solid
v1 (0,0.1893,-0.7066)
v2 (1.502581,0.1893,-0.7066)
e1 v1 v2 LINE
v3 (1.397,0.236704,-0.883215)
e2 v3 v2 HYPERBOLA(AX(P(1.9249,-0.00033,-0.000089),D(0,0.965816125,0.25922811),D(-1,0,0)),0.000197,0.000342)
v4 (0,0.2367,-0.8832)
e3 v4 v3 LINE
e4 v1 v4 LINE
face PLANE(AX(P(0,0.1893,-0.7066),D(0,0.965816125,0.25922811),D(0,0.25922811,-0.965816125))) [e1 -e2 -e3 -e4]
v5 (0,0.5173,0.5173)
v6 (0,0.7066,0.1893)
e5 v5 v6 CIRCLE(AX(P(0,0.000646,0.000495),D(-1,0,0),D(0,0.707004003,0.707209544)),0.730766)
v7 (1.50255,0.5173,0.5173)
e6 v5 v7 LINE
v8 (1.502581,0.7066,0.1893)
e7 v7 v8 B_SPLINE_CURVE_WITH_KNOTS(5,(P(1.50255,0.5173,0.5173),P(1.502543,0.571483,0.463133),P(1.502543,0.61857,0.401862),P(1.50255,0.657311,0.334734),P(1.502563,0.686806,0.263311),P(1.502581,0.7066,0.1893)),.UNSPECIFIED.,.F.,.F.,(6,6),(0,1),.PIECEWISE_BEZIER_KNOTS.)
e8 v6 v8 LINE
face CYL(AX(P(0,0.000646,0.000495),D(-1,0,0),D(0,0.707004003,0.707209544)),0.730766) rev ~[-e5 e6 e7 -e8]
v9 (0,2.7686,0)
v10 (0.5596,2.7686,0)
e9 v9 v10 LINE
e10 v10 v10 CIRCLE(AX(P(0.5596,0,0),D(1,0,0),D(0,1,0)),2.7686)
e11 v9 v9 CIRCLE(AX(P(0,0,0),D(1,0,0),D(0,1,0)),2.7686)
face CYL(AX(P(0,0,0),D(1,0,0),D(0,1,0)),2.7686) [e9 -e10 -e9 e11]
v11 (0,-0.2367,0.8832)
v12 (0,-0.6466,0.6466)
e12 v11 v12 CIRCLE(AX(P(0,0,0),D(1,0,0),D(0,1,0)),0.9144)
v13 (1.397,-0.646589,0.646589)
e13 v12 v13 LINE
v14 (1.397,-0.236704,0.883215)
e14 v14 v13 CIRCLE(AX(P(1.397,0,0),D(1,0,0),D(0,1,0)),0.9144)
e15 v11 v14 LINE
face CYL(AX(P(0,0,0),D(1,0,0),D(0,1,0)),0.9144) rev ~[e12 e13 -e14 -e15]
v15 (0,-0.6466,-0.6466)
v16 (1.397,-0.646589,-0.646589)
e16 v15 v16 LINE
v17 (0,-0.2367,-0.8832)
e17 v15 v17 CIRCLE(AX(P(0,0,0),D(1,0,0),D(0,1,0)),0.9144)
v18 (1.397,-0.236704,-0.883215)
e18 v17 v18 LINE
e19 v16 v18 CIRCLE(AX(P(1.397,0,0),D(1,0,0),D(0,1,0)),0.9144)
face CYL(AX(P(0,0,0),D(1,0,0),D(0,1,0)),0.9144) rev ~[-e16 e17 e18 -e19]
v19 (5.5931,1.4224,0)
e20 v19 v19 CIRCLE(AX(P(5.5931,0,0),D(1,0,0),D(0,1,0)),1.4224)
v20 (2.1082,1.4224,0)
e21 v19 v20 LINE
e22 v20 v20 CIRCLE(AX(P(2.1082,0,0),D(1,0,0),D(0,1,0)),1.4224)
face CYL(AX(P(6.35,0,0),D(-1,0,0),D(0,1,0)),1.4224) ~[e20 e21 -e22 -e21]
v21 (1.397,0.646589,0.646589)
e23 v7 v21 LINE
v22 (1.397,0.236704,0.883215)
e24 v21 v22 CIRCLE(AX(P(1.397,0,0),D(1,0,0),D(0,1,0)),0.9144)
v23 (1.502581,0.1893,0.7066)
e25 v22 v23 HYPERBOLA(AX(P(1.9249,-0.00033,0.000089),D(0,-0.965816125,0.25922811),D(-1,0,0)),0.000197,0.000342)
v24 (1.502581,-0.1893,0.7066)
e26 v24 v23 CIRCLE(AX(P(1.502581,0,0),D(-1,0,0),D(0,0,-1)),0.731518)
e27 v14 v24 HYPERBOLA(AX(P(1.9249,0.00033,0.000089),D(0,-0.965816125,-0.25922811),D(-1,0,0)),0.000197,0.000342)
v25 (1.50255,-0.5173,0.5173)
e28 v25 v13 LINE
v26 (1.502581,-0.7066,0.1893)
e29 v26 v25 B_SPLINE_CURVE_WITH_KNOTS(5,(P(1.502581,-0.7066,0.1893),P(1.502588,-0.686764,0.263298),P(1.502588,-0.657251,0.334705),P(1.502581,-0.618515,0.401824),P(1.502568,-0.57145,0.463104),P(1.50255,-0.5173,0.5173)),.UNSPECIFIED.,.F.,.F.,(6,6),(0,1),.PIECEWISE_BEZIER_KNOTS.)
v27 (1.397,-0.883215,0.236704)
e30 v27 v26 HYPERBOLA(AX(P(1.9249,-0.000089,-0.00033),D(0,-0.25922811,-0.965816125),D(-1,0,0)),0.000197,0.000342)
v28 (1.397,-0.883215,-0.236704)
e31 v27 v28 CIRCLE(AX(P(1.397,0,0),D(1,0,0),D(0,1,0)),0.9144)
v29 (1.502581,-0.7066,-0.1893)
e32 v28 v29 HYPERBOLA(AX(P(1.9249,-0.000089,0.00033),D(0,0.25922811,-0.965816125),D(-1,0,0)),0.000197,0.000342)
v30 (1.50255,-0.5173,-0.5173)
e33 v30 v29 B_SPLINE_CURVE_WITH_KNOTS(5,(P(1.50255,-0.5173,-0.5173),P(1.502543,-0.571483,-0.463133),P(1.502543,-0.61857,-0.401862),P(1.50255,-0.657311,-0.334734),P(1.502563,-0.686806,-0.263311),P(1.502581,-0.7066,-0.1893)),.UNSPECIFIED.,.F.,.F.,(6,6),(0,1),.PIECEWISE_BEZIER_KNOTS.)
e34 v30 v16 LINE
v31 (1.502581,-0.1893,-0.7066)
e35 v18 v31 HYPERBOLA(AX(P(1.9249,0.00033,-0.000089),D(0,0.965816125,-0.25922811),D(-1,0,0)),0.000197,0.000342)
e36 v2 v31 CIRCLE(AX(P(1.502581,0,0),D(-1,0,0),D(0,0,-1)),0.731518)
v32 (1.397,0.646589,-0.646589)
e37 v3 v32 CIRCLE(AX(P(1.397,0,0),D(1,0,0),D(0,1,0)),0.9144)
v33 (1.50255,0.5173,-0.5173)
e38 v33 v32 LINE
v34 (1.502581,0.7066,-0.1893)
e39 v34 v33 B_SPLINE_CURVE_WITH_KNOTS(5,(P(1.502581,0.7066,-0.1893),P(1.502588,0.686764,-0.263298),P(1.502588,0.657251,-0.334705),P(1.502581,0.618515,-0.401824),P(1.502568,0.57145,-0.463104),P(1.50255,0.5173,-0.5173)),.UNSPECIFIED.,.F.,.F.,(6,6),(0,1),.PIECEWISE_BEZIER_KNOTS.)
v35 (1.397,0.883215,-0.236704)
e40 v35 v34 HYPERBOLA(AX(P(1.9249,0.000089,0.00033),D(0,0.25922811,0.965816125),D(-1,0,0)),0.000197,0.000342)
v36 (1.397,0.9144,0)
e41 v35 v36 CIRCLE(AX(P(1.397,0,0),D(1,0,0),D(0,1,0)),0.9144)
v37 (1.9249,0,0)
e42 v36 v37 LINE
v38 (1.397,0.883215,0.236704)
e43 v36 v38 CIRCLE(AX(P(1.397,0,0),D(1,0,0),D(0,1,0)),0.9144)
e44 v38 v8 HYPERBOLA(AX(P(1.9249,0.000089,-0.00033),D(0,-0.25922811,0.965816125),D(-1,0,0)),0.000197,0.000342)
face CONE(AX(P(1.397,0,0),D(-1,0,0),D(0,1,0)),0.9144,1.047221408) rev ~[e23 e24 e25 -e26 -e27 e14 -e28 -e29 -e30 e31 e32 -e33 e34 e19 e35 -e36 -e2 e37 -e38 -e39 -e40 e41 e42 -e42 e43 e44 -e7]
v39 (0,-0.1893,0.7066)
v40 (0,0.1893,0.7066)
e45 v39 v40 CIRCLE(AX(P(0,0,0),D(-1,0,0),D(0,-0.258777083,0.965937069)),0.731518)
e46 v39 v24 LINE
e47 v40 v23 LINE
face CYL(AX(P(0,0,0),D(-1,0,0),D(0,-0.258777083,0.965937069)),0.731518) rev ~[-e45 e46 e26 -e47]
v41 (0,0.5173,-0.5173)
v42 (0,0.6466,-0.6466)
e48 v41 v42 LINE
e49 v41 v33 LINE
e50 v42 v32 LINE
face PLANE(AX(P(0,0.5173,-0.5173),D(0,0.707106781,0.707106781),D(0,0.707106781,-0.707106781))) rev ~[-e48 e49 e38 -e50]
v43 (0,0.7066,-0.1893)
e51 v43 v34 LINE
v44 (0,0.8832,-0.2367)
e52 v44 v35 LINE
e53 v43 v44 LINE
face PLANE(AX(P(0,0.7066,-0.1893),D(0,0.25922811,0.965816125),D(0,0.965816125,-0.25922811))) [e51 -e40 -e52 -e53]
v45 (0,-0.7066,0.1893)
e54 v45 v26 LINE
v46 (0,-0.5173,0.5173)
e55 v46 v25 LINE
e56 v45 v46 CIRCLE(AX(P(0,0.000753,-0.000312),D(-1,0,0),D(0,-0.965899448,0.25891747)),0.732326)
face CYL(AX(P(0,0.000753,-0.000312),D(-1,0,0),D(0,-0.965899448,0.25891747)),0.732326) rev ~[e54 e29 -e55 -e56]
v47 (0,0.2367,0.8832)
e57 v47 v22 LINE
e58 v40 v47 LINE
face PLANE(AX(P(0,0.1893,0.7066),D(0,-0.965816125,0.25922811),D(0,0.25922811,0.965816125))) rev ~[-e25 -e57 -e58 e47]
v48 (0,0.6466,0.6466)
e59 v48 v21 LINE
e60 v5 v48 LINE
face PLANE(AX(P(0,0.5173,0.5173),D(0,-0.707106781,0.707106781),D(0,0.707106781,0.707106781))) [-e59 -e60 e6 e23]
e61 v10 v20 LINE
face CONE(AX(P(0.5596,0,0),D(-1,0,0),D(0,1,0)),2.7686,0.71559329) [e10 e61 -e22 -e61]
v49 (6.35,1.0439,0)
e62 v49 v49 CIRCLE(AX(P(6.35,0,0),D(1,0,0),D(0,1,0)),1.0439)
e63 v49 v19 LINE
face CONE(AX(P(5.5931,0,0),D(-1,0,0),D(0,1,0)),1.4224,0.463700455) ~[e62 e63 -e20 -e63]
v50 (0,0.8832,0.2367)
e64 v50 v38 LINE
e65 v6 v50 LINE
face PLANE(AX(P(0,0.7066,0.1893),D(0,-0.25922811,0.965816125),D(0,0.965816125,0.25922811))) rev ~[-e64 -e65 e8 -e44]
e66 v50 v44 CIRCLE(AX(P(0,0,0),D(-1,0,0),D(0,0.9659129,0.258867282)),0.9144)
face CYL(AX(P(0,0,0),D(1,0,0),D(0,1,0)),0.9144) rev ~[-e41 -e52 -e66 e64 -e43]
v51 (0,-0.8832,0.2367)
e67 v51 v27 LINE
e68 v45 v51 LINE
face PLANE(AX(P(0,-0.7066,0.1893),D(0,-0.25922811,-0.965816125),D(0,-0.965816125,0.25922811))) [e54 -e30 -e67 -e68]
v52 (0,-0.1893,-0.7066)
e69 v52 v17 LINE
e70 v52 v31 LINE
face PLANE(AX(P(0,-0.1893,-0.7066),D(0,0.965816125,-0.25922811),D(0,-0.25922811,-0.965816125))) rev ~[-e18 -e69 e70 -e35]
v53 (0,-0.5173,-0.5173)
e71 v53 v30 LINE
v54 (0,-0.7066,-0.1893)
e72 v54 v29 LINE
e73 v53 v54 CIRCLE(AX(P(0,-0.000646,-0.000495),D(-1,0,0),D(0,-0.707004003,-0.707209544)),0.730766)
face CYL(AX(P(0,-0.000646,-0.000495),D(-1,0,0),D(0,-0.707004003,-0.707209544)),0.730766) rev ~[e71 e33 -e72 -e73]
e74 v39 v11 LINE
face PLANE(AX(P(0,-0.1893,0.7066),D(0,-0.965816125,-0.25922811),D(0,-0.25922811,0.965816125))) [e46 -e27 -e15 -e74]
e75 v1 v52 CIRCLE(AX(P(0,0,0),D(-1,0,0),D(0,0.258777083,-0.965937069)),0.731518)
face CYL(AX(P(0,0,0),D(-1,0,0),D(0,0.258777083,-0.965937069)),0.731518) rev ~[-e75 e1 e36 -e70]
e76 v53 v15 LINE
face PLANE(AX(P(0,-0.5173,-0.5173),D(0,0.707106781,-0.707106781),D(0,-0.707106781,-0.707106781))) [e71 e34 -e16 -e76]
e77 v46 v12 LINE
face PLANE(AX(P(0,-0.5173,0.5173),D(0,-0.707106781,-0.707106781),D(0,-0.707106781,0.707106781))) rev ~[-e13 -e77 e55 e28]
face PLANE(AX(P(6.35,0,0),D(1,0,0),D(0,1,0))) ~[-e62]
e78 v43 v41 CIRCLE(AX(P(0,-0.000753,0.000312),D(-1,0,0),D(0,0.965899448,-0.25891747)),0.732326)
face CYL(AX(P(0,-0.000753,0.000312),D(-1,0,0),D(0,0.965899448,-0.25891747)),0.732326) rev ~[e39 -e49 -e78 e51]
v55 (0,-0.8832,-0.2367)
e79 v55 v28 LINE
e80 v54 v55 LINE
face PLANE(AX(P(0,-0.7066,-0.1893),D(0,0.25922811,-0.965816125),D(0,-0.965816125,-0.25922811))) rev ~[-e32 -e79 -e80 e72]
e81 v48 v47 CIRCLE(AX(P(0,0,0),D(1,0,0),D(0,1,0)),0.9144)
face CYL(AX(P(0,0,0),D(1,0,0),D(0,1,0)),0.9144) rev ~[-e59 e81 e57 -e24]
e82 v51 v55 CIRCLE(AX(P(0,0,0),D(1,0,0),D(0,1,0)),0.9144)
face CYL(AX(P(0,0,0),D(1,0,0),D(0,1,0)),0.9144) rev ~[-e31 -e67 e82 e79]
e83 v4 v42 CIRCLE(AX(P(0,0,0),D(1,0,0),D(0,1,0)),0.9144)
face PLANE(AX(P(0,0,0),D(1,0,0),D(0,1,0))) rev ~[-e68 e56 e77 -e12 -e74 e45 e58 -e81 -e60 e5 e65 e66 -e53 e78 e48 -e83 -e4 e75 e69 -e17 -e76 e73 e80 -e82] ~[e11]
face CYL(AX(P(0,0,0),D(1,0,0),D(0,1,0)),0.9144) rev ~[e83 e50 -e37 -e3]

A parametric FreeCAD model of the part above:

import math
import FreeCAD as App
import Part
import Sketcher
from FreeCAD import Vector
Q = App.Units.Quantity


def edges_at(feature, points):
    """Names of the edges that pass closest to the given points."""
    edges = feature.Shape.Edges
    near = lambda p: min(range(len(edges)), key=lambda i: edges[i].distToShape(Part.Vertex(*p))[0])
    return sorted({f"Edge{near(p) + 1}" for p in points})

doc = App.newDocument("Part")
body = doc.addObject("PartDesign::Body", "Body")

sketch1 = doc.addObject("Sketcher::SketchObject", "Sketch")
body.addObject(sketch1)
sketch1.AttachmentSupport = (doc.XY_Plane, [""])
sketch1.MapMode = "FlatFace"
sketch1.addGeometry([
    Part.LineSegment(Vector(1.9249, 0, 0), Vector(6.35, 0, 0)),
    Part.LineSegment(Vector(6.35, 0, 0), Vector(6.35, 1.4224, 0)),
    Part.LineSegment(Vector(6.35, 1.4224, 0), Vector(2.1082, 1.4224, 0)),
    Part.LineSegment(Vector(2.1082, 1.4224, 0), Vector(0.5596, 2.7686, 0)),
    Part.LineSegment(Vector(0.5596, 2.7686, 0), Vector(0, 2.7686, 0)),
    Part.LineSegment(Vector(0, 2.7686, 0), Vector(0, 0.9144, 0)),
    Part.LineSegment(Vector(0, 0.9144, 0), Vector(1.397, 0.9144, 0)),
    Part.LineSegment(Vector(1.397, 0.9144, 0), Vector(1.9249, 0, 0)),
], False)
sketch1.addConstraint([
    Sketcher.Constraint("Coincident", 0, 2, 1, 1),
    Sketcher.Constraint("Coincident", 1, 2, 2, 1),
    Sketcher.Constraint("Coincident", 2, 2, 3, 1),
    Sketcher.Constraint("Coincident", 3, 2, 4, 1),
    Sketcher.Constraint("Coincident", 4, 2, 5, 1),
    Sketcher.Constraint("Coincident", 5, 2, 6, 1),
    Sketcher.Constraint("Coincident", 6, 2, 7, 1),
    Sketcher.Constraint("Coincident", 7, 2, 0, 1),
    Sketcher.Constraint("Horizontal", 0),
    Sketcher.Constraint("Vertical", 1),
    Sketcher.Constraint("Horizontal", 2),
    Sketcher.Constraint("Horizontal", 4),
    Sketcher.Constraint("Vertical", 5),
    Sketcher.Constraint("Horizontal", 6),
    Sketcher.Constraint("PointOnObject", 0, 2, -1),
    Sketcher.Constraint("PointOnObject", 4, 2, -2),
    Sketcher.Constraint("DistanceX", 6, 1, 6, 2, Q("0.055 in")),
    Sketcher.Constraint("DistanceX", -1, 1, 0, 2, Q("0.25 in")),
    Sketcher.Constraint("DistanceX", -1, 1, 2, 2, Q("0.083 in")),
    Sketcher.Constraint("Angle", 3, Q("138.9995 deg")),
    Sketcher.Constraint("DistanceY", 1, 1, 1, 2, Q("0.056 in")),
    Sketcher.Constraint("DistanceY", 5, 2, 5, 1, Q("0.073 in")),
    Sketcher.Constraint("DistanceY", 5, 2, 2, 2, Q("0.02 in")),
    Sketcher.Constraint("DistanceX", 0, 1, 0, 2, 4.425),
])
revolution = doc.addObject("PartDesign::Revolution", "Revolution")
body.addObject(revolution)
revolution.Profile = sketch1
revolution.ReferenceAxis = (sketch1, ["H_Axis"])
revolution.Angle = 360

sketch2 = doc.addObject("Sketcher::SketchObject", "Sketch001")
body.addObject(sketch2)
sketch2.AttachmentSupport = (doc.YZ_Plane, [""])
sketch2.MapMode = "FlatFace"
sketch2.addGeometry([
    Part.ArcOfCircle(Part.Circle(Vector(0, 0, 0), Vector(0, 0, 1), 0.731518), math.radians(75.002489), math.radians(104.997511)),
    Part.LineSegment(Vector(-0.1893, 0.7066, 0), Vector(-0.2367, 0.8832, 0)),
    Part.ArcOfCircle(Part.Circle(Vector(0, 0, 0), Vector(0, 0, 1), 0.9144), math.radians(74.997139), math.radians(105.002861)),
    Part.LineSegment(Vector(0.2367, 0.8832, 0), Vector(0.1893, 0.7066, 0)),
    Part.ArcOfCircle(Part.Circle(Vector(0, 0, 0), Vector(0, 0, 1), 0.731518), math.radians(-104.997511), math.radians(-75.002489)),
    Part.LineSegment(Vector(0.1893, -0.7066, 0), Vector(0.2367, -0.8832, 0)),
    Part.ArcOfCircle(Part.Circle(Vector(0, 0, 0), Vector(0, 0, 1), 0.9144), math.radians(-105.002861), math.radians(-74.997139)),
    Part.LineSegment(Vector(-0.2367, -0.8832, 0), Vector(-0.1893, -0.7066, 0)),
    Part.ArcOfCircle(Part.Circle(Vector(0, 0, 0), Vector(0, 0, 1), 0.9144), math.radians(15.002861), math.radians(45)),
    Part.LineSegment(Vector(0.8832, 0.2367, 0), Vector(0.7066, 0.1893, 0)),
    Part.ArcOfCircle(Part.Circle(Vector(0, 0, 0), Vector(0, 0, 1), 0.731518), math.radians(14.997511), math.radians(45)),
    Part.LineSegment(Vector(0.5173, 0.5173, 0), Vector(0.6466, 0.6466, 0)),
    Part.LineSegment(Vector(0.7066, -0.1893, 0), Vector(0.8832, -0.2367, 0)),
    Part.ArcOfCircle(Part.Circle(Vector(0, 0, 0), Vector(0, 0, 1), 0.9144), math.radians(-45), math.radians(-15.002861)),
    Part.LineSegment(Vector(0.6466, -0.6466, 0), Vector(0.5173, -0.5173, 0)),
    Part.ArcOfCircle(Part.Circle(Vector(0, 0, 0), Vector(0, 0, 1), 0.731573), math.radians(-45), math.radians(-14.997511)),
    Part.ArcOfCircle(Part.Circle(Vector(0, 0, 0), Vector(0, 0, 1), 0.9144), math.radians(-164.997139), math.radians(-135)),
    Part.LineSegment(Vector(-0.8832, -0.2367, 0), Vector(-0.7066, -0.1893, 0)),
    Part.ArcOfCircle(Part.Circle(Vector(0, 0, 0), Vector(0, 0, 1), 0.731518), math.radians(-165.002489), math.radians(-135)),
    Part.LineSegment(Vector(-0.5173, -0.5173, 0), Vector(-0.6466, -0.6466, 0)),
    Part.LineSegment(Vector(-0.7066, 0.1893, 0), Vector(-0.8832, 0.2367, 0)),
    Part.ArcOfCircle(Part.Circle(Vector(0, 0, 0), Vector(0, 0, 1), 0.9144), math.radians(135), math.radians(164.997139)),
    Part.LineSegment(Vector(-0.6466, 0.6466, 0), Vector(-0.5173, 0.5173, 0)),
    Part.ArcOfCircle(Part.Circle(Vector(0, 0, 0), Vector(0, 0, 1), 0.731573), math.radians(135), math.radians(165.002489)),
], False)
sketch2.addConstraint([
    Sketcher.Constraint("Coincident", 0, 2, 1, 1),
    Sketcher.Constraint("Coincident", 1, 2, 2, 2),
    Sketcher.Constraint("Coincident", 2, 1, 3, 1),
    Sketcher.Constraint("Coincident", 3, 2, 0, 1),
    Sketcher.Constraint("Coincident", 4, 2, 5, 1),
    Sketcher.Constraint("Coincident", 5, 2, 6, 2),
    Sketcher.Constraint("Coincident", 6, 1, 7, 1),
    Sketcher.Constraint("Coincident", 7, 2, 4, 1),
    Sketcher.Constraint("Coincident", 8, 1, 9, 1),
    Sketcher.Constraint("Coincident", 9, 2, 10, 1),
    Sketcher.Constraint("Coincident", 10, 2, 11, 1),
    Sketcher.Constraint("Coincident", 11, 2, 8, 2),
    Sketcher.Constraint("Coincident", 12, 2, 13, 2),
    Sketcher.Constraint("Coincident", 13, 1, 14, 1),
    Sketcher.Constraint("Coincident", 14, 2, 15, 1),
    Sketcher.Constraint("Coincident", 15, 2, 12, 1),
    Sketcher.Constraint("Coincident", 16, 1, 17, 1),
    Sketcher.Constraint("Coincident", 17, 2, 18, 1),
    Sketcher.Constraint("Coincident", 18, 2, 19, 1),
    Sketcher.Constraint("Coincident", 19, 2, 16, 2),
    Sketcher.Constraint("Coincident", 20, 2, 21, 2),
    Sketcher.Constraint("Coincident", 21, 1, 22, 1),
    Sketcher.Constraint("Coincident", 22, 2, 23, 1),
    Sketcher.Constraint("Coincident", 23, 2, 20, 1),
    Sketcher.Constraint("Coincident", 0, 3, -1, 1),
    Sketcher.Constraint("Coincident", 2, 3, -1, 1),
    Sketcher.Constraint("Coincident", 4, 3, -1, 1),
    Sketcher.Constraint("Coincident", 6, 3, -1, 1),
    Sketcher.Constraint("Coincident", 8, 3, -1, 1),
    Sketcher.Constraint("Coincident", 10, 3, -1, 1),
    Sketcher.Constraint("Coincident", 13, 3, -1, 1),
    Sketcher.Constraint("Coincident", 15, 3, -1, 1),
    Sketcher.Constraint("Coincident", 16, 3, -1, 1),
    Sketcher.Constraint("Coincident", 18, 3, -1, 1),
    Sketcher.Constraint("Coincident", 21, 3, -1, 1),
    Sketcher.Constraint("Coincident", 23, 3, -1, 1),
    Sketcher.Constraint("Equal", 0, 4),
    Sketcher.Constraint("Equal", 2, 6),
    Sketcher.Constraint("Equal", 6, 8),
    Sketcher.Constraint("Equal", 4, 10),
    Sketcher.Constraint("Equal", 8, 13),
    Sketcher.Constraint("Equal", 10, 15),
    Sketcher.Constraint("Equal", 13, 16),
    Sketcher.Constraint("Equal", 15, 18),
    Sketcher.Constraint("Equal", 16, 21),
    Sketcher.Constraint("Equal", 18, 23),
    Sketcher.Constraint("Parallel", 1, 5),
    Sketcher.Constraint("Parallel", 3, 7),
    Sketcher.Constraint("Perpendicular", 5, 9),
    Sketcher.Constraint("Perpendicular", 7, 12),
    Sketcher.Constraint("Perpendicular", 11, 14),
    Sketcher.Constraint("Parallel", 9, 17),
    Sketcher.Constraint("Perpendicular", 14, 19),
    Sketcher.Constraint("Parallel", 12, 20),
    Sketcher.Constraint("Perpendicular", 19, 22),
    Sketcher.Constraint("Horizontal", 1, 2, 2, 1),
    Sketcher.Constraint("Horizontal", 0, 2, 3, 2),
    Sketcher.Constraint("Horizontal", 5, 2, 6, 1),
    Sketcher.Constraint("Horizontal", 12, 2, 16, 1),
    Sketcher.Constraint("Horizontal", 14, 2, 18, 2),
    Sketcher.Constraint("Horizontal", 13, 1, 19, 2),
    Sketcher.Constraint("Horizontal", 8, 1, 20, 2),
    Sketcher.Constraint("Horizontal", 11, 2, 21, 1),
    Sketcher.Constraint("Vertical", 3, 2, 4, 2),
    Sketcher.Constraint("Vertical", 8, 1, 12, 2),
    Sketcher.Constraint("Vertical", 11, 2, 13, 1),
    Sketcher.Constraint("Radius", 2, Q("0.036 in")),
    Sketcher.Constraint("Radius", 0, Q("0.0288 in")),
    Sketcher.Constraint("DistanceX", 3, 2, 11, 2, Q("0.018 in")),
    Sketcher.Constraint("DistanceY", 9, 2, 11, 2, Q("0.018 in")),
    Sketcher.Constraint("DistanceX", 0, 2, 3, 2, Q("0.0149 in")),
    Sketcher.Constraint("DistanceY", 8, 1, 3, 2, Q("0.0185 in")),
])
pad1 = doc.addObject("PartDesign::Pad", "Pad")
body.addObject(pad1)
pad1.Profile = sketch2
pad1.Type = "UpToFirst"
doc.recompute()

chamfer = doc.addObject("PartDesign::Chamfer", "Chamfer")
body.addObject(chamfer)
chamfer.Base = (pad1, edges_at(pad1, [(6.35, -1.422, 0)]))
chamfer.ChamferType = "Two distances"
chamfer.Size = Q("0.0149016 in")
chamfer.Size2 = Q("0.0297992 in")

doc.recompute()
